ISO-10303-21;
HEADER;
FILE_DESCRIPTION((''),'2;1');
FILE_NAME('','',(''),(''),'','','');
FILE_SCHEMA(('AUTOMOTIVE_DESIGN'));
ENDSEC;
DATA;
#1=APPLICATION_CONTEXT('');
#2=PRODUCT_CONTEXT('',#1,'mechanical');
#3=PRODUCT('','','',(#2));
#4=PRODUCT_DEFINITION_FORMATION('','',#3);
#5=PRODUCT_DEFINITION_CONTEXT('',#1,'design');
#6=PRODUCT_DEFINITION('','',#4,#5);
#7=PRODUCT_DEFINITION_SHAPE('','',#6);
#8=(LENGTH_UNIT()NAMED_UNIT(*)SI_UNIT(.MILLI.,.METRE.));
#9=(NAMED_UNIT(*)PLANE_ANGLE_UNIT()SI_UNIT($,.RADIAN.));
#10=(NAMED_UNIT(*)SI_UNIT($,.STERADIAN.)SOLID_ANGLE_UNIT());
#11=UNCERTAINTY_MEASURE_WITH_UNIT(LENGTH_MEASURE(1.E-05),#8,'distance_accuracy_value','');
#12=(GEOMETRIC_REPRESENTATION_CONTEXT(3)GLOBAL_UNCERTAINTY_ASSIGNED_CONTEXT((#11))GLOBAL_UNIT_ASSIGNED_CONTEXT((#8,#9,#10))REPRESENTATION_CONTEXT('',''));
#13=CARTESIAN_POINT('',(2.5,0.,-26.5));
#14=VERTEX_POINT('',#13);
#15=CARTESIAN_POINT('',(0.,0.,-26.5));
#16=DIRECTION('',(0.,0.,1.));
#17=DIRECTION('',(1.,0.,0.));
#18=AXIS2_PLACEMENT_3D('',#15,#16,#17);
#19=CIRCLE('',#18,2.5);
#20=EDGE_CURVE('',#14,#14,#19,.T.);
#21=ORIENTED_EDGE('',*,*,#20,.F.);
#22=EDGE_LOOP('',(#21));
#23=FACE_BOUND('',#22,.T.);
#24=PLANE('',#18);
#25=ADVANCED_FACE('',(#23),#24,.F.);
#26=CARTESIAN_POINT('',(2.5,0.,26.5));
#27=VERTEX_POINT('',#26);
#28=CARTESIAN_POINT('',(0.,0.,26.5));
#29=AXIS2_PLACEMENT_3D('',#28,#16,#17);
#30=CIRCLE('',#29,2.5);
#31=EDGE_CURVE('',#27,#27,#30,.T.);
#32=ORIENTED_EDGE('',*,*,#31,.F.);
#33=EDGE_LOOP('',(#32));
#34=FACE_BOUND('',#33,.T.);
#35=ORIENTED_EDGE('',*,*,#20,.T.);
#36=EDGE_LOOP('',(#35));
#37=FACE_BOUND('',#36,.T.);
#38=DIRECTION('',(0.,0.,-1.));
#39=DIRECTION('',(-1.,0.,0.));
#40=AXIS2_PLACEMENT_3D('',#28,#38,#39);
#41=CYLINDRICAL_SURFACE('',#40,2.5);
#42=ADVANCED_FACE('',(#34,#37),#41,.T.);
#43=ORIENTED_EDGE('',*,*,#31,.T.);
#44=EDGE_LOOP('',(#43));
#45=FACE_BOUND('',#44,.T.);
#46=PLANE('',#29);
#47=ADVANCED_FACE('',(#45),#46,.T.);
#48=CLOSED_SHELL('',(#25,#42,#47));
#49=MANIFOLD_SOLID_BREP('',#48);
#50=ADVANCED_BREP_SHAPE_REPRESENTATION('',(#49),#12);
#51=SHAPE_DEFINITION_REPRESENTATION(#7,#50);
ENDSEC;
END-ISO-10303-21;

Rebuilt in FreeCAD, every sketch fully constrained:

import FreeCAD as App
import Part
import Sketcher
from FreeCAD import Vector

doc = App.newDocument("Part")
params = doc.addObject("Spreadsheet::Sheet", "Params")
for row, (alias, value) in enumerate([
    ("sketch1_diameter", "5 mm"),
    ("pad1_length", "53 mm"),
], start=1):
    params.set(f"A{row}", alias)
    params.set(f"B{row}", "=" + value)
    params.setAlias(f"B{row}", alias)

body = doc.addObject("PartDesign::Body", "Body")

# Sketch on XY plane
sketch1 = body.newObject("Sketcher::SketchObject", "Sketch")
sketch1.AttachmentSupport = (doc.getObject("XY_Plane"), [""])
sketch1.MapMode = "FlatFace"
sketch1.addGeometry(Part.Circle(Vector(0, 0, 0), Vector(0, 0, 1), 2.5), False)
sketch1.addConstraint([
    Sketcher.Constraint("Coincident", 0, 3, -1, 1),
    Sketcher.Constraint("Diameter", 0, 5.0),
])
sketch1.setExpression("Constraints[1]", "Params.sketch1_diameter")
pad1 = body.newObject("PartDesign::Pad", "Pad")
pad1.Profile = sketch1
pad1.setExpression("Length", "Params.pad1_length")
pad1.Midplane = True

doc.recompute()
